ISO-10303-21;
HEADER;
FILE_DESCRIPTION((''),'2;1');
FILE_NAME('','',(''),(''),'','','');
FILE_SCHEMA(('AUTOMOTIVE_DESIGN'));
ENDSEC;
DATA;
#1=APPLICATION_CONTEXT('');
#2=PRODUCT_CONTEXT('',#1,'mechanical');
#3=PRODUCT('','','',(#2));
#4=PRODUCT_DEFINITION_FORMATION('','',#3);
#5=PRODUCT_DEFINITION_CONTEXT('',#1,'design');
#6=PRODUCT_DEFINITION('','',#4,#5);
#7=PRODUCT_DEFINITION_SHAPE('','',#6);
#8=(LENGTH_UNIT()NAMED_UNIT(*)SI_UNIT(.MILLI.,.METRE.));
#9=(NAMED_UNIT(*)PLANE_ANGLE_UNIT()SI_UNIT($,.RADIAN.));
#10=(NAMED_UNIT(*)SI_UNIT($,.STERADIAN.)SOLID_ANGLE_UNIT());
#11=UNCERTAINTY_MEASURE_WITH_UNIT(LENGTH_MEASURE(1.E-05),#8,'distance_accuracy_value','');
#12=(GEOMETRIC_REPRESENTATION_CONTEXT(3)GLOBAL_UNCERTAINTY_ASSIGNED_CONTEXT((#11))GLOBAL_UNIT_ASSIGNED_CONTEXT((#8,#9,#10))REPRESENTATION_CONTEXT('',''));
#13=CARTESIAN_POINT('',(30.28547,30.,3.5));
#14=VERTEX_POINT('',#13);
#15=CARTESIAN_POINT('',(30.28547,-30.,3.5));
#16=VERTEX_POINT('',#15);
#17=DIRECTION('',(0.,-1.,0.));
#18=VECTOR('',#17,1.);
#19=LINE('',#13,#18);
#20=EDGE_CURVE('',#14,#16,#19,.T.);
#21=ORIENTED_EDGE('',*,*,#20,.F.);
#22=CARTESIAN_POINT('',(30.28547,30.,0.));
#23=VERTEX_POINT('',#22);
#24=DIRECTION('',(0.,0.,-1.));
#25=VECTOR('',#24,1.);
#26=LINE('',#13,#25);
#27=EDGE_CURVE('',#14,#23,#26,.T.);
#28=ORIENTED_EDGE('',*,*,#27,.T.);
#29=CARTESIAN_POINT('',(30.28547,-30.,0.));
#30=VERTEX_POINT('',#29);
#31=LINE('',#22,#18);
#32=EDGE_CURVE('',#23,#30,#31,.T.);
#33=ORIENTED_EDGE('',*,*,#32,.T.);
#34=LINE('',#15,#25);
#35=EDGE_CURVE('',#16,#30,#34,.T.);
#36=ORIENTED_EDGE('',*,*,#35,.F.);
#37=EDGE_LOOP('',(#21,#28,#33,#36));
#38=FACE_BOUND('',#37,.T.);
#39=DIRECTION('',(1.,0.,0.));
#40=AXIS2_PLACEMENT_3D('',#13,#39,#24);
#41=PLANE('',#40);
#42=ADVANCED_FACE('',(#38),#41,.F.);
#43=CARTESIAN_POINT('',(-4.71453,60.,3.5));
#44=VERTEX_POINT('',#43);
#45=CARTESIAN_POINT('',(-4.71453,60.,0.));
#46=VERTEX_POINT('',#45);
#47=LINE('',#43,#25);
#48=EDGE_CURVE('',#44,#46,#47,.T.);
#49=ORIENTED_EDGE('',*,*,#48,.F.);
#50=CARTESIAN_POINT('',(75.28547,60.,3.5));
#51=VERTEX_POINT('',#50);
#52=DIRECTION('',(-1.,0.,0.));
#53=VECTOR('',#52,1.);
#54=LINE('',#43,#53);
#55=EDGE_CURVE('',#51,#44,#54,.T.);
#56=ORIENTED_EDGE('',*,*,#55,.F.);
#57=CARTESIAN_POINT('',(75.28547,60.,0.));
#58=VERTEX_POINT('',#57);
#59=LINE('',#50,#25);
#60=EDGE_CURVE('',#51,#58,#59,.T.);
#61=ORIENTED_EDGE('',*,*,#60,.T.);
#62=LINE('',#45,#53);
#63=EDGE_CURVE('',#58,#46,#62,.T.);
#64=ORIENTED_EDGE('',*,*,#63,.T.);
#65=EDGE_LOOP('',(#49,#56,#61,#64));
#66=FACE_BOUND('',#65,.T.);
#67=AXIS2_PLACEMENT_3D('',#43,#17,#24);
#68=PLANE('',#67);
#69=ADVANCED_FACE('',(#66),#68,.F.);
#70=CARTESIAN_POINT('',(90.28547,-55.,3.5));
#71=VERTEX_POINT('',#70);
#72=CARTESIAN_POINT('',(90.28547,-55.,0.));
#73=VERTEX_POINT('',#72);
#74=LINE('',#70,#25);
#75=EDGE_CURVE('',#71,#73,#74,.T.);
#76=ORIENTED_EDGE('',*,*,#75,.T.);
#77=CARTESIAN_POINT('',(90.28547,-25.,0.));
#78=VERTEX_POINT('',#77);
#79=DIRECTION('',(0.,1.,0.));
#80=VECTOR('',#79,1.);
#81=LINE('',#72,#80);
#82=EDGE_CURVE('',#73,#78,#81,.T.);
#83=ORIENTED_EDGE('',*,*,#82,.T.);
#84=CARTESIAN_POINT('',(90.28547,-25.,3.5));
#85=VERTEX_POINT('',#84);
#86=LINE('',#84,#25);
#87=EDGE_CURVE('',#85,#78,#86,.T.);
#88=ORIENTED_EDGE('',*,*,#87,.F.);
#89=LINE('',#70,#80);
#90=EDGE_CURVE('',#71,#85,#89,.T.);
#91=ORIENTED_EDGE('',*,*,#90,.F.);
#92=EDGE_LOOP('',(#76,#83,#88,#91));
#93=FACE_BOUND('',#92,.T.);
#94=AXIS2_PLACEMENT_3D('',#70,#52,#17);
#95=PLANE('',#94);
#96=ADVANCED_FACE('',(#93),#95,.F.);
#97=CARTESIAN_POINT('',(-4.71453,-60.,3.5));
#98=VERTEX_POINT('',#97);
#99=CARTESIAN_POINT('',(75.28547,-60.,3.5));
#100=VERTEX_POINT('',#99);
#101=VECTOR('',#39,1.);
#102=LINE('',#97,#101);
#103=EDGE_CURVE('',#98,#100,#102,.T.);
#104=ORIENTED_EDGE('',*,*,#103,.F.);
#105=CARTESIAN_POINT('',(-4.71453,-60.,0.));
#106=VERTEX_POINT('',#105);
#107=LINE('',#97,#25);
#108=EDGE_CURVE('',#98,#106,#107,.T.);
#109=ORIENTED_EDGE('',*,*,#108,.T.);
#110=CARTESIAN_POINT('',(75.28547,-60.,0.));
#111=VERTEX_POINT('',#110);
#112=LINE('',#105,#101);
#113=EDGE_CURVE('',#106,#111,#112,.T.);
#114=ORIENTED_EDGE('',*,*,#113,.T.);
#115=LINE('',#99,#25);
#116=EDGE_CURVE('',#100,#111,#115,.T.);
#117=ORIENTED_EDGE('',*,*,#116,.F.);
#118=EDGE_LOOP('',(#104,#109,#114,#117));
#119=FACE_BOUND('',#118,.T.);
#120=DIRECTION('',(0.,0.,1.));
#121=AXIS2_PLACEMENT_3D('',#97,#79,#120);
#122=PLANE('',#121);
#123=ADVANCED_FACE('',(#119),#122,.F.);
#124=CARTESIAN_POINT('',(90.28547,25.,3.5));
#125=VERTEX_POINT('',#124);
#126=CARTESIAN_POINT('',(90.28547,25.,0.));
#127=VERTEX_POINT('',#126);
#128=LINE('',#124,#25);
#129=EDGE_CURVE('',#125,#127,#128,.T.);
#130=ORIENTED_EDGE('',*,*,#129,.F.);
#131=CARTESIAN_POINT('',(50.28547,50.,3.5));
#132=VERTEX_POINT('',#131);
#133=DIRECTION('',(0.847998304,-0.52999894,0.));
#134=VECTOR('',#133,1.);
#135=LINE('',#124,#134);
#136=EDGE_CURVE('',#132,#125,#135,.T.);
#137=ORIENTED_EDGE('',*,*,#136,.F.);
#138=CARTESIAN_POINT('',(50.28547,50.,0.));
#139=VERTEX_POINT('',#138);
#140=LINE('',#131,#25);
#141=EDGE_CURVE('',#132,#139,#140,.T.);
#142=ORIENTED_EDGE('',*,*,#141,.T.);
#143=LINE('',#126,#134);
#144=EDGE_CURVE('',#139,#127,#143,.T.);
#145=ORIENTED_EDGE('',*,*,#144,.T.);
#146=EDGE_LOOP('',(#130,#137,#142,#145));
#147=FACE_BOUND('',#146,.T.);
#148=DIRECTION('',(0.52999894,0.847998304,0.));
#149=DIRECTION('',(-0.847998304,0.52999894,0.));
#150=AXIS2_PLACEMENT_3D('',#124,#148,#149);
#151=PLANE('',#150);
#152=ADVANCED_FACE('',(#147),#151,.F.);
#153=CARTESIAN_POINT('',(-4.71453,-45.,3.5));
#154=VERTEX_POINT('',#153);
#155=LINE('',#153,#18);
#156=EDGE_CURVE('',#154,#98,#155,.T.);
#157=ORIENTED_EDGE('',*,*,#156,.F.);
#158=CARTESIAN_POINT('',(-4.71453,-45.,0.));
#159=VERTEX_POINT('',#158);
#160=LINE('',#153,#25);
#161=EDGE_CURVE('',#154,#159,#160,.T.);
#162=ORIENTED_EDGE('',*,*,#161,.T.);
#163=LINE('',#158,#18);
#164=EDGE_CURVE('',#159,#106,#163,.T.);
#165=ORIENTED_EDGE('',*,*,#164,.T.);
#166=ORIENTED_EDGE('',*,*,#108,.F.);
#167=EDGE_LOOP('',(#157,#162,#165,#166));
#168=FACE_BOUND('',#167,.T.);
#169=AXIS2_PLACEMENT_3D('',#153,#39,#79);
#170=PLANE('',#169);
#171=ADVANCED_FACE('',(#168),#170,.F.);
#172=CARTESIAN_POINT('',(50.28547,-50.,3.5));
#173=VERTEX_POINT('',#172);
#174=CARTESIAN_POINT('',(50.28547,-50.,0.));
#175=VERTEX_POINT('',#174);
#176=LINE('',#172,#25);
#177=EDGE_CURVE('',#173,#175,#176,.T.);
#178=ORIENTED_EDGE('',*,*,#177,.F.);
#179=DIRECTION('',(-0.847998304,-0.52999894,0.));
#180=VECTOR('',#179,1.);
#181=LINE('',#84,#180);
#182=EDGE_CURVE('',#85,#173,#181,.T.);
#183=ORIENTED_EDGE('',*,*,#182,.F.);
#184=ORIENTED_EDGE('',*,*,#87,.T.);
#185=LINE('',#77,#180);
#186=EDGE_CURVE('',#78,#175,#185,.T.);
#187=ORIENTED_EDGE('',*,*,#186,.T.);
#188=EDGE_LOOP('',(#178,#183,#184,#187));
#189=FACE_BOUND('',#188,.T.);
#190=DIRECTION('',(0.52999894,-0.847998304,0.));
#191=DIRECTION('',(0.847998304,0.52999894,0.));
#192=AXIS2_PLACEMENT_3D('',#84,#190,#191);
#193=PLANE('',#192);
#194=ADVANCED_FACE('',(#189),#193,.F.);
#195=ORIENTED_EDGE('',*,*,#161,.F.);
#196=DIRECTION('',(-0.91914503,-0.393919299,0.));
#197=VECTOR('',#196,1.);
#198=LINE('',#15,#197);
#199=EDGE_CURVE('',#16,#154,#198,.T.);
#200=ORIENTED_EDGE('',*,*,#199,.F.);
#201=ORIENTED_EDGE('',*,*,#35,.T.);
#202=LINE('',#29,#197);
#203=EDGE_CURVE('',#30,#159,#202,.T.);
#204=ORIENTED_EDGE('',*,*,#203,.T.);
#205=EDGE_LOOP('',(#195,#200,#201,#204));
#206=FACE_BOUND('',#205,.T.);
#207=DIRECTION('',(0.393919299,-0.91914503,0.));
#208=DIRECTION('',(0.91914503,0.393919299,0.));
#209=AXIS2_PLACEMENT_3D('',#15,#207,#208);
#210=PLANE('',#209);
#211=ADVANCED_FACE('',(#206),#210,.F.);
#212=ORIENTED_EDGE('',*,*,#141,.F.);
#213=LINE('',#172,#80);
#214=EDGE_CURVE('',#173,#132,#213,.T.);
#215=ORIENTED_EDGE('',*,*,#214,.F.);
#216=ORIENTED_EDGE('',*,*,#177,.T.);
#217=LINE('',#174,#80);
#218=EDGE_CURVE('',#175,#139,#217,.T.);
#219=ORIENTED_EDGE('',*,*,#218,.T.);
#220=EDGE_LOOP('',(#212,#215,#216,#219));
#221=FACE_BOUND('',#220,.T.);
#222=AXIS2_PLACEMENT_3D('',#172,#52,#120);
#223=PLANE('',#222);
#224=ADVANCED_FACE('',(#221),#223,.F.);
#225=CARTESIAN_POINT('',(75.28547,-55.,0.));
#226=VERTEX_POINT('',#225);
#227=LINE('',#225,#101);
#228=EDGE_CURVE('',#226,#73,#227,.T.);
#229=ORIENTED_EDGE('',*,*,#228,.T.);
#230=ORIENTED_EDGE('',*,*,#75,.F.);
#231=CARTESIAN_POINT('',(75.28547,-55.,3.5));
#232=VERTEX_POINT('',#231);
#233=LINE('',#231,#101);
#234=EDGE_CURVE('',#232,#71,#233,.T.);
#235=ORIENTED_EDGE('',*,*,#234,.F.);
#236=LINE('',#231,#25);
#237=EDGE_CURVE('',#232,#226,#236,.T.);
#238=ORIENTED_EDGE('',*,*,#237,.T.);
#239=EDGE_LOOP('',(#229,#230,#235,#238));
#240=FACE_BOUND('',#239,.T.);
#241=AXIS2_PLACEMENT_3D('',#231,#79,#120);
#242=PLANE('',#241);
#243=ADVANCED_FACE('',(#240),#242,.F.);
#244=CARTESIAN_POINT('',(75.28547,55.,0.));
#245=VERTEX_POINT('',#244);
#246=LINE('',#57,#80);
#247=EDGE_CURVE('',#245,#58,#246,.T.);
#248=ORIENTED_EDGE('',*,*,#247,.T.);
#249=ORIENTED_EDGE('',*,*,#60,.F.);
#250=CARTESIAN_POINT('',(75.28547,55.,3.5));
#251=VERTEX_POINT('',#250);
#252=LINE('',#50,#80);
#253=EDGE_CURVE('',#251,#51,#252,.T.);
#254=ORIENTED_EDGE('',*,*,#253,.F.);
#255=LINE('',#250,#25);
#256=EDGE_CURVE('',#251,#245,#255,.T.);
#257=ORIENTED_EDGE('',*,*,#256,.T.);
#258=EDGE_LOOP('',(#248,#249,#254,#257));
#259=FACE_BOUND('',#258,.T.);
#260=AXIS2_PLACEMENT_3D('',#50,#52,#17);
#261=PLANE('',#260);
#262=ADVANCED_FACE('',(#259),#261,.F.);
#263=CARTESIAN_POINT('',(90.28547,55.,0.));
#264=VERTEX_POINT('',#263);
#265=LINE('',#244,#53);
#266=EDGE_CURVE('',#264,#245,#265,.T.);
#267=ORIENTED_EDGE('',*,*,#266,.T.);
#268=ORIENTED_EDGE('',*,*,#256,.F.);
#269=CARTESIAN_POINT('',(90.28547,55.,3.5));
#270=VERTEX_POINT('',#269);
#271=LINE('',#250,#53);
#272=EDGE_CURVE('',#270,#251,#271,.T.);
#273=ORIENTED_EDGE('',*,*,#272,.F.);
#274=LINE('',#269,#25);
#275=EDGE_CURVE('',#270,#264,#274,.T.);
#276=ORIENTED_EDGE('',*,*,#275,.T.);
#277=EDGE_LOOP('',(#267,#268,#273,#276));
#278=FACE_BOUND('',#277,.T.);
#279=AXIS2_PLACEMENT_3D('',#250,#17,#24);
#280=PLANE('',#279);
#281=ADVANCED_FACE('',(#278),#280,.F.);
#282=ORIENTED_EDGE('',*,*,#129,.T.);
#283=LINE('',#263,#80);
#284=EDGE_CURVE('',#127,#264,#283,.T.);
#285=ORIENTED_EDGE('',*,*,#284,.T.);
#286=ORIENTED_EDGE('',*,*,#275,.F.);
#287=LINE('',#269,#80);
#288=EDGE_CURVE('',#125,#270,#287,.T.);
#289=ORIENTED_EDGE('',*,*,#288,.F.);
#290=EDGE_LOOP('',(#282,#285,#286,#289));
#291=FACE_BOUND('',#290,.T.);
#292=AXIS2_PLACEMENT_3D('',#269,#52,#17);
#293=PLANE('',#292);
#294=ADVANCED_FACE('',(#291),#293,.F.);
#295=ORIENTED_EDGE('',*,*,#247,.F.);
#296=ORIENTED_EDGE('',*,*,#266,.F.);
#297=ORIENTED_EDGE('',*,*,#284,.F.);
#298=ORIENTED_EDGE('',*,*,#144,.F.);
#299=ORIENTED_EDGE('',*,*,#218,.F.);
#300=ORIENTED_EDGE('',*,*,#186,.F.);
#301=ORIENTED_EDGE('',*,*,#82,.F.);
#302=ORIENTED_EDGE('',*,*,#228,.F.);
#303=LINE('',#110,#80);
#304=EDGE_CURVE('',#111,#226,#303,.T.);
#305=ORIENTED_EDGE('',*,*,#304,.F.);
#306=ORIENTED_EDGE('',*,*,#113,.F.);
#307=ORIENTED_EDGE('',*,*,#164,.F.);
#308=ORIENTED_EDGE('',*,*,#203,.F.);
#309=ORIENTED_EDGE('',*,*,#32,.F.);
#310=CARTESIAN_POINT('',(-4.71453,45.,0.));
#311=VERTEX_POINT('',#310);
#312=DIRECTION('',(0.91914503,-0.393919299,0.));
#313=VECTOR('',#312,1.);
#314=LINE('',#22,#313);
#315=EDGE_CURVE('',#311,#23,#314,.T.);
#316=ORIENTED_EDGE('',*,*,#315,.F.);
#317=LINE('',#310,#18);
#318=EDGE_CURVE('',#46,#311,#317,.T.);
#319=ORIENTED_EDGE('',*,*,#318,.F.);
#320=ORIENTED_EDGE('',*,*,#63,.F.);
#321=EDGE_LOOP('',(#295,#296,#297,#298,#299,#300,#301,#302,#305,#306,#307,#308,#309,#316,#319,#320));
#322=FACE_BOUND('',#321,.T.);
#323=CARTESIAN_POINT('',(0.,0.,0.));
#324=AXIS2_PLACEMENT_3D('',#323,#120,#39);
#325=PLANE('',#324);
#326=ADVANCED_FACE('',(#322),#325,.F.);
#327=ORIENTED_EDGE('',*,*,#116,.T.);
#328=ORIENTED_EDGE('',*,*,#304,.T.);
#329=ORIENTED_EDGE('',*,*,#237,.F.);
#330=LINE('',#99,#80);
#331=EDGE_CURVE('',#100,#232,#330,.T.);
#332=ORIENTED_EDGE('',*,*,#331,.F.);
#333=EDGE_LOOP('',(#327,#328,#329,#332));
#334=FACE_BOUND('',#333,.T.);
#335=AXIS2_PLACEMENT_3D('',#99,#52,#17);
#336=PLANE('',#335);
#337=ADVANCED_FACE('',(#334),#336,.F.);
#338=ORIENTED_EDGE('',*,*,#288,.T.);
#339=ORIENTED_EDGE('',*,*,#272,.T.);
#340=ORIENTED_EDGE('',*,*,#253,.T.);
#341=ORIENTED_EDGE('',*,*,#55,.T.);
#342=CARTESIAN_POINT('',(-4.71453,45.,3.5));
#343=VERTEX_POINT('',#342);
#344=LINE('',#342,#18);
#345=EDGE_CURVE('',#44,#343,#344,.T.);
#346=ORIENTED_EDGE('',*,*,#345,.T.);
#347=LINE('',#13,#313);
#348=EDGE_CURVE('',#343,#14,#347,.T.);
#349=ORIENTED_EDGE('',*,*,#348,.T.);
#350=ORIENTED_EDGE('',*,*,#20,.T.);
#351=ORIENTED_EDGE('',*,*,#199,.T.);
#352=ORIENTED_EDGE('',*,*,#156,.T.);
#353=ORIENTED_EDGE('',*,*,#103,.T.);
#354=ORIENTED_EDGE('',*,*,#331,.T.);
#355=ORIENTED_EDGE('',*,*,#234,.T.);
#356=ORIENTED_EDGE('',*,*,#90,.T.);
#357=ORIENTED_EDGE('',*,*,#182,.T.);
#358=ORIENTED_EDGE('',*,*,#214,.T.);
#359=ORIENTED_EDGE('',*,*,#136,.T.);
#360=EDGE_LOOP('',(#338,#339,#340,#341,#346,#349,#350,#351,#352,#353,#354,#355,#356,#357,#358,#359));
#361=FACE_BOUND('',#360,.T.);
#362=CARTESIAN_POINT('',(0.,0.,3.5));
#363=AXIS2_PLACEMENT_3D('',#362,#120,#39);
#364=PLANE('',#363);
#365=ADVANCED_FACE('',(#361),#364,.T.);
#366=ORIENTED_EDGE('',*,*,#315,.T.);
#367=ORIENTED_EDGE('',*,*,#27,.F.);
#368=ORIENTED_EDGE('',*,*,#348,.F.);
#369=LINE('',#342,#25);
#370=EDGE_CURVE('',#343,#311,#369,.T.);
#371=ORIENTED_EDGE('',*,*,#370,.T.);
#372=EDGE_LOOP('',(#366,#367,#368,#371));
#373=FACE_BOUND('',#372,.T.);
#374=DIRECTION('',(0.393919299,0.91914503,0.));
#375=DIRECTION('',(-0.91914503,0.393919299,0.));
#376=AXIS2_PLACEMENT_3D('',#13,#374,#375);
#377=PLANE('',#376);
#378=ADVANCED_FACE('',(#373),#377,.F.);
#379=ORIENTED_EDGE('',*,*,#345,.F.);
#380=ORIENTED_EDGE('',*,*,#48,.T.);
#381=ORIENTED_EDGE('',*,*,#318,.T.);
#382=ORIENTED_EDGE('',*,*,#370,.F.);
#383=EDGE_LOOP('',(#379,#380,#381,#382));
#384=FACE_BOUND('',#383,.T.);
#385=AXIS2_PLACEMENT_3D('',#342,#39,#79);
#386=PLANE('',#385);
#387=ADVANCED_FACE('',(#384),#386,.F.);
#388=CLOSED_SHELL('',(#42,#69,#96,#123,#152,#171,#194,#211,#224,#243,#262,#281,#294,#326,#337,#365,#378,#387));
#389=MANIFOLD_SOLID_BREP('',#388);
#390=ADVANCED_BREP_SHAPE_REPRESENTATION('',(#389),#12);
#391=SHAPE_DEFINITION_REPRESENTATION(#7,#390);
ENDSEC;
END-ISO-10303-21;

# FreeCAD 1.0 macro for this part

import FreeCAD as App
import Part
import Sketcher

V = App.Vector
Q = App.Units.Quantity

doc = App.newDocument("Part")
body = doc.addObject("PartDesign::Body", "Body")

# Sketch on XY plane
sketch1 = body.newObject("Sketcher::SketchObject", "Sketch")
sketch1.AttachmentSupport = (doc.getObject("XY_Plane"), [""])
sketch1.MapMode = "FlatFace"
sketch1.addGeometry([
    Part.LineSegment(V(30, 30, 0), V(30, -30, 0)),  # 0
    Part.LineSegment(V(30, -30, 0), V(-5, -45, 0)),  # 1
    Part.LineSegment(V(-5, -45, 0), V(-5, -60, 0)),  # 2
    Part.LineSegment(V(-5, -60, 0), V(75, -60, 0)),  # 3
    Part.LineSegment(V(75, -60, 0), V(75, -55, 0)),  # 4
    Part.LineSegment(V(75, -55, 0), V(90, -55, 0)),  # 5
    Part.LineSegment(V(90, -55, 0), V(90, -25, 0)),  # 6
    Part.LineSegment(V(90, -25, 0), V(50, -50, 0)),  # 7
    Part.LineSegment(V(50, -50, 0), V(50, 50, 0)),  # 8
    Part.LineSegment(V(50, 50, 0), V(90, 25, 0)),  # 9
    Part.LineSegment(V(90, 25, 0), V(90, 55, 0)),  # 10
    Part.LineSegment(V(90, 55, 0), V(75, 55, 0)),  # 11
    Part.LineSegment(V(75, 55, 0), V(75, 60, 0)),  # 12
    Part.LineSegment(V(75, 60, 0), V(-5, 60, 0)),  # 13
    Part.LineSegment(V(-5, 60, 0), V(-5, 45, 0)),  # 14
    Part.LineSegment(V(-5, 45, 0), V(30, 30, 0)),  # 15
], False)
sketch1.addConstraint([
    Sketcher.Constraint("Coincident", 0, 2, 1, 1),
    Sketcher.Constraint("Coincident", 1, 2, 2, 1),
    Sketcher.Constraint("Coincident", 2, 2, 3, 1),
    Sketcher.Constraint("Coincident", 3, 2, 4, 1),
    Sketcher.Constraint("Coincident", 4, 2, 5, 1),
    Sketcher.Constraint("Coincident", 5, 2, 6, 1),
    Sketcher.Constraint("Coincident", 6, 2, 7, 1),
    Sketcher.Constraint("Coincident", 7, 2, 8, 1),
    Sketcher.Constraint("Coincident", 8, 2, 9, 1),
    Sketcher.Constraint("Coincident", 9, 2, 10, 1),
    Sketcher.Constraint("Coincident", 10, 2, 11, 1),
    Sketcher.Constraint("Coincident", 11, 2, 12, 1),
    Sketcher.Constraint("Coincident", 12, 2, 13, 1),
    Sketcher.Constraint("Coincident", 13, 2, 14, 1),
    Sketcher.Constraint("Coincident", 14, 2, 15, 1),
    Sketcher.Constraint("Coincident", 15, 2, 0, 1),
    Sketcher.Constraint("Vertical", 0),
    Sketcher.Constraint("Vertical", 2),
    Sketcher.Constraint("Horizontal", 3),
    Sketcher.Constraint("Vertical", 4),
    Sketcher.Constraint("Horizontal", 5),
    Sketcher.Constraint("Vertical", 6),
    Sketcher.Constraint("Vertical", 8),
    Sketcher.Constraint("Vertical", 10),
    Sketcher.Constraint("Horizontal", 11),
    Sketcher.Constraint("Vertical", 12),
    Sketcher.Constraint("Horizontal", 13),
    Sketcher.Constraint("Vertical", 14),
    Sketcher.Constraint("Symmetric", 6, 2, 9, 2, -1),
    Sketcher.Constraint("Symmetric", 4, 2, 11, 2, -1),
    Sketcher.Constraint("Symmetric", 2, 2, 13, 2, -1),
    Sketcher.Constraint("Equal", 11, 2),
    Sketcher.Constraint("Equal", 2, 14),
    Sketcher.Constraint("Equal", 7, 9),
    Sketcher.Constraint("Equal", 1, 15),
    Sketcher.Constraint("DistanceX", 3, 1, 3, 2, Q("80 mm")),
    Sketcher.Constraint("DistanceX", 5, 1, 5, 2, Q("15 mm")),
    Sketcher.Constraint("DistanceY", 0, 2, 0, 1, Q("60 mm")),
    Sketcher.Constraint("DistanceY", 4, 1, 4, 2, Q("5 mm")),
    Sketcher.Constraint("DistanceY", 6, 1, 6, 2, Q("30 mm")),
    Sketcher.Constraint("DistanceY", 8, 1, 8, 2, Q("100 mm")),
    Sketcher.Constraint("DistanceY", 1, 2, -1, 1, Q("45 mm")),
    Sketcher.Constraint("DistanceX", 1, 2, 0, 2, Q("35 mm")),
    Sketcher.Constraint("DistanceX", 7, 2, 4, 2, Q("25 mm")),
    Sketcher.Constraint("DistanceX", -1, 1, 0, 2, Q("30.28547 mm")),
])
pad1 = body.newObject("PartDesign::Pad", "Pad")
pad1.Profile = sketch1
pad1.Length = 3.5

doc.recompute()
